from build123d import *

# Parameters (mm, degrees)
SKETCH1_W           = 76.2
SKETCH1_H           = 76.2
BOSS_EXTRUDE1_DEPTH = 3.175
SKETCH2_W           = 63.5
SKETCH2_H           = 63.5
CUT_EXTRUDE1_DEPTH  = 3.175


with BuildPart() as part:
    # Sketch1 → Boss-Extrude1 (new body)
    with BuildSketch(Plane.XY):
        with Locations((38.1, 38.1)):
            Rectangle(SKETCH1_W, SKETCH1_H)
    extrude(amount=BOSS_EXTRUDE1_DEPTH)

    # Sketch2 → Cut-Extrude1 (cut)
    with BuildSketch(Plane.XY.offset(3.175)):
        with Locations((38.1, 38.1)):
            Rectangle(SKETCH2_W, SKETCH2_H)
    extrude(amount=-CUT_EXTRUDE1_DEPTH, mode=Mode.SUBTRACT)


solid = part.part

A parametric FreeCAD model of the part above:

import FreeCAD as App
import Part
import Sketcher
from FreeCAD import Vector
Q = App.Units.Quantity

doc = App.newDocument("Part")
params = doc.addObject("Spreadsheet::Sheet", "Params")
for row, (alias, value) in enumerate([
    ("sketch1_width", "3 in"),
    ("pad1_length", "0.125 in"),
    ("sketch2_width", "2.5 in"),
    ("pocket1_length", "0.125 in"),
], start=1):
    params.set(f"A{row}", alias)
    params.set(f"B{row}", "=" + value)
    params.setAlias(f"B{row}", alias)

body = doc.addObject("PartDesign::Body", "Body")

# Sketch on XY plane
sketch1 = body.newObject("Sketcher::SketchObject", "Sketch")
sketch1.AttachmentSupport = (doc.getObject("XY_Plane"), [""])
sketch1.MapMode = "FlatFace"
sketch1.addGeometry(Part.LineSegment(Vector(0, 76.2, 0), Vector(0, 0, 0)), False)
sketch1.addGeometry(Part.LineSegment(Vector(0, 0, 0), Vector(76.2, 0, 0)), False)
sketch1.addGeometry(Part.LineSegment(Vector(76.2, 0, 0), Vector(76.2, 76.2, 0)), False)
sketch1.addGeometry(Part.LineSegment(Vector(76.2, 76.2, 0), Vector(0, 76.2, 0)), False)
sketch1.addConstraint(Sketcher.Constraint("Coincident", 0, 2, 1, 1))
sketch1.addConstraint(Sketcher.Constraint("Coincident", 1, 2, 2, 1))
sketch1.addConstraint(Sketcher.Constraint("Coincident", 2, 2, 3, 1))
sketch1.addConstraint(Sketcher.Constraint("Coincident", 3, 2, 0, 1))
sketch1.addConstraint(Sketcher.Constraint("Vertical", 0))
sketch1.addConstraint(Sketcher.Constraint("Horizontal", 1))
sketch1.addConstraint(Sketcher.Constraint("Vertical", 2))
sketch1.addConstraint(Sketcher.Constraint("Horizontal", 3))
sketch1.addConstraint(Sketcher.Constraint("Coincident", 0, 2, -1, 1))
sketch1.addConstraint(Sketcher.Constraint("Equal", 3, 0))
sketch1.addConstraint(Sketcher.Constraint("DistanceX", 1, 1, 1, 2, Q("3 in")))
sketch1.setExpression("Constraints[10]", "Params.sketch1_width")
pad1 = body.newObject("PartDesign::Pad", "Pad")
pad1.Profile = sketch1
pad1.setExpression("Length", "Params.pad1_length")

# Sketch on XY plane
sketch2 = body.newObject("Sketcher::SketchObject", "Sketch001")
sketch2.AttachmentSupport = (doc.getObject("XY_Plane"), [""])
sketch2.MapMode = "FlatFace"
sketch2.AttachmentOffset = App.Placement(Vector(0, 0, 0.125 * 25.4), App.Rotation())
sketch2.addGeometry(Part.LineSegment(Vector(6.35, 69.85, 0), Vector(6.35, 6.35, 0)), False)
sketch2.addGeometry(Part.LineSegment(Vector(6.35, 6.35, 0), Vector(69.85, 6.35, 0)), False)
sketch2.addGeometry(Part.LineSegment(Vector(69.85, 6.35, 0), Vector(69.85, 69.85, 0)), False)
sketch2.addGeometry(Part.LineSegment(Vector(69.85, 69.85, 0), Vector(6.35, 69.85, 0)), False)
sketch2.addConstraint(Sketcher.Constraint("Coincident", 0, 2, 1, 1))
sketch2.addConstraint(Sketcher.Constraint("Coincident", 1, 2, 2, 1))
sketch2.addConstraint(Sketcher.Constraint("Coincident", 2, 2, 3, 1))
sketch2.addConstraint(Sketcher.Constraint("Coincident", 3, 2, 0, 1))
sketch2.addConstraint(Sketcher.Constraint("Vertical", 0))
sketch2.addConstraint(Sketcher.Constraint("Horizontal", 1))
sketch2.addConstraint(Sketcher.Constraint("Vertical", 2))
sketch2.addConstraint(Sketcher.Constraint("Horizontal", 3))
sketch2.addConstraint(Sketcher.Constraint("Equal", 3, 0))
sketch2.addConstraint(Sketcher.Constraint("DistanceX", 1, 1, 1, 2, Q("2.5 in")))
sketch2.addConstraint(Sketcher.Constraint("DistanceX", -1, 1, 0, 2, Q("0.25 in")))
sketch2.addConstraint(Sketcher.Constraint("DistanceY", -1, 1, 0, 2, Q("0.25 in")))
sketch2.setExpression("Constraints[9]", "Params.sketch2_width")
pocket1 = body.newObject("PartDesign::Pocket", "Pocket")
pocket1.Profile = sketch2
pocket1.setExpression("Length", "Params.pocket1_length")

doc.recompute()
